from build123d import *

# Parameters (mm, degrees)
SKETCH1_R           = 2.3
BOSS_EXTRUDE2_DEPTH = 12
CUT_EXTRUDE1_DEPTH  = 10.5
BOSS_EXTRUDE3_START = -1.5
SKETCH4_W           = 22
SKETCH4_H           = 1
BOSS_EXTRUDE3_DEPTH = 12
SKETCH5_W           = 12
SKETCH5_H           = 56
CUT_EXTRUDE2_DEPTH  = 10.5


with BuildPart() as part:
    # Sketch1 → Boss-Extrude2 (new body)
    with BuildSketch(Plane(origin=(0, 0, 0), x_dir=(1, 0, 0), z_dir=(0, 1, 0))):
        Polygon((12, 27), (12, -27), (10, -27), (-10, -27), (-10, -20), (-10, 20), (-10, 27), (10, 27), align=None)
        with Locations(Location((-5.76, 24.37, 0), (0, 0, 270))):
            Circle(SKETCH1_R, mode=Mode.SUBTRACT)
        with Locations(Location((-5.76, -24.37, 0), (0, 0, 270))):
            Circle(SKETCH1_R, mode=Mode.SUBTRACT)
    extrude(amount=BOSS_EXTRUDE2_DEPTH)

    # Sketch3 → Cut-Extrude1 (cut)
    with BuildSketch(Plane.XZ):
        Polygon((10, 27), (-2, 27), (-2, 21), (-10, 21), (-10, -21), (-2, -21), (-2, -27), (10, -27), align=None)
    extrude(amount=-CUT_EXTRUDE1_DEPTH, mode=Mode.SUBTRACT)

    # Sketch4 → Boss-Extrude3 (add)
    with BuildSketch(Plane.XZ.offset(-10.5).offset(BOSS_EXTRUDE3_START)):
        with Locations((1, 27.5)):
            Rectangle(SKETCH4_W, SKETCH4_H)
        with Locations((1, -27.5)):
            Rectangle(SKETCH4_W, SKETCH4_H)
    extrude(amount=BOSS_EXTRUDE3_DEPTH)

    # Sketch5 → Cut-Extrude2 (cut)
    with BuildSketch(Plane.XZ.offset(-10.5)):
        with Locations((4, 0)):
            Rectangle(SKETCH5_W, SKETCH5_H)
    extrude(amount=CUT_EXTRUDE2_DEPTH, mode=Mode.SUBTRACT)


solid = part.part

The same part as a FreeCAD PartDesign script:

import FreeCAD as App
import Part
import Sketcher
from FreeCAD import Vector

doc = App.newDocument("Part")
params = doc.addObject("Spreadsheet::Sheet", "Params")
for row, (alias, value) in enumerate([
    ("sketch1_diameter", "4.6 mm"),
    ("sketch1_width", "22 mm"),
    ("sketch1_height", "54 mm"),
    ("pad1_length", "12 mm"),
    ("sketch2_width", "12 mm"),
    ("sketch2_width2", "8 mm"),
    ("sketch2_height", "6 mm"),
    ("sketch2_height2", "42 mm"),
    ("pocket1_length", "10.5 mm"),
    ("sketch3_width", "22 mm"),
    ("sketch3_height", "1 mm"),
    ("pad2_length", "12 mm"),
    ("sketch4_width", "12 mm"),
    ("sketch4_height", "56 mm"),
    ("pocket2_length", "10.5 mm"),
], start=1):
    params.set(f"A{row}", alias)
    params.set(f"B{row}", "=" + value)
    params.setAlias(f"B{row}", alias)

body = doc.addObject("PartDesign::Body", "Body")

# Sketch on XZ plane
sketch1 = body.newObject("Sketcher::SketchObject", "Sketch")
sketch1.AttachmentSupport = (doc.getObject("XZ_Plane"), [""])
sketch1.MapMode = "FlatFace"
sketch1.addGeometry(Part.LineSegment(Vector(12, 27, 0), Vector(12, -27, 0)), False)
sketch1.addGeometry(Part.LineSegment(Vector(12, -27, 0), Vector(-10, -27, 0)), False)
sketch1.addGeometry(Part.LineSegment(Vector(-10, -27, 0), Vector(-10, 27, 0)), False)
sketch1.addGeometry(Part.LineSegment(Vector(-10, 27, 0), Vector(12, 27, 0)), False)
sketch1.addGeometry(Part.Circle(Vector(-5.8, 24.4, 0), Vector(0, 0, 1), 2.3), False)
sketch1.addGeometry(Part.Circle(Vector(-5.8, -24.4, 0), Vector(0, 0, 1), 2.3), False)
sketch1.addConstraint(Sketcher.Constraint("Coincident", 0, 2, 1, 1))
sketch1.addConstraint(Sketcher.Constraint("Coincident", 1, 2, 2, 1))
sketch1.addConstraint(Sketcher.Constraint("Coincident", 2, 2, 3, 1))
sketch1.addConstraint(Sketcher.Constraint("Coincident", 3, 2, 0, 1))
sketch1.addConstraint(Sketcher.Constraint("Vertical", 0))
sketch1.addConstraint(Sketcher.Constraint("Horizontal", 1))
sketch1.addConstraint(Sketcher.Constraint("Vertical", 2))
sketch1.addConstraint(Sketcher.Constraint("Horizontal", 3))
sketch1.addConstraint(Sketcher.Constraint("Equal", 4, 5))
sketch1.addConstraint(Sketcher.Constraint("Symmetric", 4, 3, 5, 3, -1))
sketch1.addConstraint(Sketcher.Constraint("Diameter", 4, 4.6))
sketch1.addConstraint(Sketcher.Constraint("DistanceX", 1, 2, 1, 1, 22.0))
sketch1.addConstraint(Sketcher.Constraint("DistanceY", 0, 2, 0, 1, 54.0))
sketch1.addConstraint(Sketcher.Constraint("DistanceX", -1, 1, 0, 2, 12.0))
sketch1.addConstraint(Sketcher.Constraint("DistanceY", 0, 2, -1, 1, 27.0))
sketch1.addConstraint(Sketcher.Constraint("DistanceX", 4, 3, -1, 1, 5.76))
sketch1.addConstraint(Sketcher.Constraint("DistanceY", -1, 1, 4, 3, 24.37))
sketch1.setExpression("Constraints[10]", "Params.sketch1_diameter")
sketch1.setExpression("Constraints[11]", "Params.sketch1_width")
sketch1.setExpression("Constraints[12]", "Params.sketch1_height")
pad1 = body.newObject("PartDesign::Pad", "Pad")
pad1.Profile = sketch1
pad1.setExpression("Length", "Params.pad1_length")
pad1.Reversed = True

# Sketch on XZ plane
sketch2 = body.newObject("Sketcher::SketchObject", "Sketch001")
sketch2.AttachmentSupport = (doc.getObject("XZ_Plane"), [""])
sketch2.MapMode = "FlatFace"
sketch2.addGeometry(Part.LineSegment(Vector(10, 27, 0), Vector(-2, 27, 0)), False)
sketch2.addGeometry(Part.LineSegment(Vector(-2, 27, 0), Vector(-2, 21, 0)), False)
sketch2.addGeometry(Part.LineSegment(Vector(-2, 21, 0), Vector(-10, 21, 0)), False)
sketch2.addGeometry(Part.LineSegment(Vector(-10, 21, 0), Vector(-10, -21, 0)), False)
sketch2.addGeometry(Part.LineSegment(Vector(-10, -21, 0), Vector(-2, -21, 0)), False)
sketch2.addGeometry(Part.LineSegment(Vector(-2, -21, 0), Vector(-2, -27, 0)), False)
sketch2.addGeometry(Part.LineSegment(Vector(-2, -27, 0), Vector(10, -27, 0)), False)
sketch2.addGeometry(Part.LineSegment(Vector(10, -27, 0), Vector(10, 27, 0)), False)
sketch2.addConstraint(Sketcher.Constraint("Coincident", 0, 2, 1, 1))
sketch2.addConstraint(Sketcher.Constraint("Coincident", 1, 2, 2, 1))
sketch2.addConstraint(Sketcher.Constraint("Coincident", 2, 2, 3, 1))
sketch2.addConstraint(Sketcher.Constraint("Coincident", 3, 2, 4, 1))
sketch2.addConstraint(Sketcher.Constraint("Coincident", 4, 2, 5, 1))
sketch2.addConstraint(Sketcher.Constraint("Coincident", 5, 2, 6, 1))
sketch2.addConstraint(Sketcher.Constraint("Coincident", 6, 2, 7, 1))
sketch2.addConstraint(Sketcher.Constraint("Coincident", 7, 2, 0, 1))
sketch2.addConstraint(Sketcher.Constraint("Horizontal", 0))
sketch2.addConstraint(Sketcher.Constraint("Vertical", 1))
sketch2.addConstraint(Sketcher.Constraint("Horizontal", 2))
sketch2.addConstraint(Sketcher.Constraint("Vertical", 3))
sketch2.addConstraint(Sketcher.Constraint("Horizontal", 4))
sketch2.addConstraint(Sketcher.Constraint("Vertical", 5))
sketch2.addConstraint(Sketcher.Constraint("Horizontal", 6))
sketch2.addConstraint(Sketcher.Constraint("Vertical", 7))
sketch2.addConstraint(Sketcher.Constraint("Symmetric", 1, 2, 4, 2, -1))
sketch2.addConstraint(Sketcher.Constraint("Equal", 1, 5))
sketch2.addConstraint(Sketcher.Constraint("DistanceX", 0, 2, 0, 1, 12.0))
sketch2.addConstraint(Sketcher.Constraint("DistanceX", 2, 2, 2, 1, 8.0))
sketch2.addConstraint(Sketcher.Constraint("DistanceY", 1, 2, 1, 1, 6.0))
sketch2.addConstraint(Sketcher.Constraint("DistanceY", 3, 2, 3, 1, 42.0))
sketch2.addConstraint(Sketcher.Constraint("DistanceX", 0, 2, -1, 1, 2.0))
sketch2.setExpression("Constraints[18]", "Params.sketch2_width")
sketch2.setExpression("Constraints[19]", "Params.sketch2_width2")
sketch2.setExpression("Constraints[20]", "Params.sketch2_height")
sketch2.setExpression("Constraints[21]", "Params.sketch2_height2")
pocket1 = body.newObject("PartDesign::Pocket", "Pocket")
pocket1.Profile = sketch2
pocket1.setExpression("Length", "Params.pocket1_length")

# Sketch on XZ plane
sketch3 = body.newObject("Sketcher::SketchObject", "Sketch002")
sketch3.AttachmentSupport = (doc.getObject("XZ_Plane"), [""])
sketch3.MapMode = "FlatFace"
sketch3.AttachmentOffset = App.Placement(Vector(0, 0, -12), App.Rotation())
sketch3.addGeometry(Part.LineSegment(Vector(-10, 28, 0), Vector(-10, 27, 0)), False)
sketch3.addGeometry(Part.LineSegment(Vector(-10, 27, 0), Vector(12, 27, 0)), False)
sketch3.addGeometry(Part.LineSegment(Vector(12, 27, 0), Vector(12, 28, 0)), False)
sketch3.addGeometry(Part.LineSegment(Vector(12, 28, 0), Vector(-10, 28, 0)), False)
sketch3.addGeometry(Part.LineSegment(Vector(-10, -27, 0), Vector(-10, -28, 0)), False)
sketch3.addGeometry(Part.LineSegment(Vector(-10, -28, 0), Vector(12, -28, 0)), False)
sketch3.addGeometry(Part.LineSegment(Vector(12, -28, 0), Vector(12, -27, 0)), False)
sketch3.addGeometry(Part.LineSegment(Vector(12, -27, 0), Vector(-10, -27, 0)), False)
sketch3.addConstraint(Sketcher.Constraint("Coincident", 0, 2, 1, 1))
sketch3.addConstraint(Sketcher.Constraint("Coincident", 1, 2, 2, 1))
sketch3.addConstraint(Sketcher.Constraint("Coincident", 2, 2, 3, 1))
sketch3.addConstraint(Sketcher.Constraint("Coincident", 3, 2, 0, 1))
sketch3.addConstraint(Sketcher.Constraint("Coincident", 4, 2, 5, 1))
sketch3.addConstraint(Sketcher.Constraint("Coincident", 5, 2, 6, 1))
sketch3.addConstraint(Sketcher.Constraint("Coincident", 6, 2, 7, 1))
sketch3.addConstraint(Sketcher.Constraint("Coincident", 7, 2, 4, 1))
sketch3.addConstraint(Sketcher.Constraint("Vertical", 0))
sketch3.addConstraint(Sketcher.Constraint("Horizontal", 1))
sketch3.addConstraint(Sketcher.Constraint("Vertical", 2))
sketch3.addConstraint(Sketcher.Constraint("Horizontal", 3))
sketch3.addConstraint(Sketcher.Constraint("Vertical", 4))
sketch3.addConstraint(Sketcher.Constraint("Horizontal", 5))
sketch3.addConstraint(Sketcher.Constraint("Vertical", 6))
sketch3.addConstraint(Sketcher.Constraint("Horizontal", 7))
sketch3.addConstraint(Sketcher.Constraint("Symmetric", 3, 2, 4, 2, -1))
sketch3.addConstraint(Sketcher.Constraint("Symmetric", 1, 2, 6, 2, -1))
sketch3.addConstraint(Sketcher.Constraint("DistanceX", 1, 1, 1, 2, 22.0))
sketch3.addConstraint(Sketcher.Constraint("DistanceY", 0, 2, 0, 1, 1.0))
sketch3.addConstraint(Sketcher.Constraint("DistanceX", 0, 2, -1, 1, 10.0))
sketch3.addConstraint(Sketcher.Constraint("DistanceY", -1, 1, 0, 2, 27.0))
sketch3.setExpression("Constraints[18]", "Params.sketch3_width")
sketch3.setExpression("Constraints[19]", "Params.sketch3_height")
pad2 = body.newObject("PartDesign::Pad", "Pad001")
pad2.Profile = sketch3
pad2.setExpression("Length", "Params.pad2_length")

# Sketch on XZ plane
sketch4 = body.newObject("Sketcher::SketchObject", "Sketch003")
sketch4.AttachmentSupport = (doc.getObject("XZ_Plane"), [""])
sketch4.MapMode = "FlatFace"
sketch4.AttachmentOffset = App.Placement(Vector(0, 0, -10.5), App.Rotation())
sketch4.addGeometry(Part.LineSegment(Vector(-2, 28, 0), Vector(-2, -28, 0)), False)
sketch4.addGeometry(Part.LineSegment(Vector(-2, -28, 0), Vector(10, -28, 0)), False)
sketch4.addGeometry(Part.LineSegment(Vector(10, -28, 0), Vector(10, 28, 0)), False)
sketch4.addGeometry(Part.LineSegment(Vector(10, 28, 0), Vector(-2, 28, 0)), False)
sketch4.addConstraint(Sketcher.Constraint("Coincident", 0, 2, 1, 1))
sketch4.addConstraint(Sketcher.Constraint("Coincident", 1, 2, 2, 1))
sketch4.addConstraint(Sketcher.Constraint("Coincident", 2, 2, 3, 1))
sketch4.addConstraint(Sketcher.Constraint("Coincident", 3, 2, 0, 1))
sketch4.addConstraint(Sketcher.Constraint("Vertical", 0))
sketch4.addConstraint(Sketcher.Constraint("Horizontal", 1))
sketch4.addConstraint(Sketcher.Constraint("Vertical", 2))
sketch4.addConstraint(Sketcher.Constraint("Horizontal", 3))
sketch4.addConstraint(Sketcher.Constraint("DistanceX", 1, 1, 1, 2, 12.0))
sketch4.addConstraint(Sketcher.Constraint("DistanceY", 0, 2, 0, 1, 56.0))
sketch4.addConstraint(Sketcher.Constraint("DistanceX", 0, 2, -1, 1, 2.0))
sketch4.addConstraint(Sketcher.Constraint("DistanceY", 0, 2, -1, 1, 28.0))
sketch4.setExpression("Constraints[8]", "Params.sketch4_width")
sketch4.setExpression("Constraints[9]", "Params.sketch4_height")
pocket2 = body.newObject("PartDesign::Pocket", "Pocket001")
pocket2.Profile = sketch4
pocket2.setExpression("Length", "Params.pocket2_length")
pocket2.Reversed = True

doc.recompute()
